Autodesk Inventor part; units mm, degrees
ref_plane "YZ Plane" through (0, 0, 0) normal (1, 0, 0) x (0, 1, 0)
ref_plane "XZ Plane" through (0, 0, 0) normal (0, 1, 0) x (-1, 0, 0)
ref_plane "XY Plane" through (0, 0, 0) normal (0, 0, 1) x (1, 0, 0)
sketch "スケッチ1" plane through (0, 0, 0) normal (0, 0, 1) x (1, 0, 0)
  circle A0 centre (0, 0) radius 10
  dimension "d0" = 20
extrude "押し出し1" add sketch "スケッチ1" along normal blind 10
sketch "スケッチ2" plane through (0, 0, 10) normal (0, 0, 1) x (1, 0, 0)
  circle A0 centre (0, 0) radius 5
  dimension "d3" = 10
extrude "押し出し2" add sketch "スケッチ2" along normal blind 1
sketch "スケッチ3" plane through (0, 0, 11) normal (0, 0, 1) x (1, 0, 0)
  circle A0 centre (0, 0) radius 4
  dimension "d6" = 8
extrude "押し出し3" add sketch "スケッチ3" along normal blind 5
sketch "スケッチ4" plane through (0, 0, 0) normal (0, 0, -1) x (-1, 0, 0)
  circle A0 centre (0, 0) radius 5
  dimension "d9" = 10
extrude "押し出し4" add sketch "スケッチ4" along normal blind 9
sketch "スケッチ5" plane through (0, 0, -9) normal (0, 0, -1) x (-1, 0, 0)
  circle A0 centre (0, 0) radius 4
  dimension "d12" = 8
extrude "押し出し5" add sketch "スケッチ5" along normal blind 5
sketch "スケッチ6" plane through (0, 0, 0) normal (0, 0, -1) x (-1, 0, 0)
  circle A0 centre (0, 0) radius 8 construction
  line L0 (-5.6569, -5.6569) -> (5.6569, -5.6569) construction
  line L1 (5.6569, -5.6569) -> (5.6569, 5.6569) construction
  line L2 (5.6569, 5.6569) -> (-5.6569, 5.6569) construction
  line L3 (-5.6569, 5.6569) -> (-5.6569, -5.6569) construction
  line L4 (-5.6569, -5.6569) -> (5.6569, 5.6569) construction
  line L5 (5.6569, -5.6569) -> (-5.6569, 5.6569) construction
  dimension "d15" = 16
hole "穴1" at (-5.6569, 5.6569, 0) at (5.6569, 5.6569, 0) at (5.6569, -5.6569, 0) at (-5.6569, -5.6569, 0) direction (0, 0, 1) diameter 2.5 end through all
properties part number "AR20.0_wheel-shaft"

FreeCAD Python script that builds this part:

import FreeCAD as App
import Part
import Sketcher

V = App.Vector

doc = App.newDocument("Part")
body = doc.addObject("PartDesign::Body", "Body")

# Sketch on XY plane
sketch1 = body.newObject("Sketcher::SketchObject", "Sketch")
sketch1.AttachmentSupport = (doc.getObject("XY_Plane"), [""])
sketch1.MapMode = "FlatFace"
sketch1.addGeometry(Part.Circle(V(0, 0, 0), V(0, 0, 1), 10), False)
sketch1.addConstraint([
    Sketcher.Constraint("Coincident", 0, 3, -1, 1),
    Sketcher.Constraint("Diameter", 0, 20.0),
])
pad1 = body.newObject("PartDesign::Pad", "Pad")
pad1.Profile = sketch1
pad1.Length = 10

# Sketch on XY plane
sketch2 = body.newObject("Sketcher::SketchObject", "Sketch001")
sketch2.AttachmentSupport = (doc.getObject("XY_Plane"), [""])
sketch2.MapMode = "FlatFace"
sketch2.AttachmentOffset = App.Placement(V(0, 0, 10), App.Rotation())
sketch2.addGeometry(Part.Circle(V(0, 0, 0), V(0, 0, 1), 5), False)
sketch2.addConstraint([
    Sketcher.Constraint("Coincident", 0, 3, -1, 1),
    Sketcher.Constraint("Diameter", 0, 10.0),
])
pad2 = body.newObject("PartDesign::Pad", "Pad001")
pad2.Profile = sketch2
pad2.Length = 1

# Sketch on XY plane
sketch3 = body.newObject("Sketcher::SketchObject", "Sketch002")
sketch3.AttachmentSupport = (doc.getObject("XY_Plane"), [""])
sketch3.MapMode = "FlatFace"
sketch3.AttachmentOffset = App.Placement(V(0, 0, 11), App.Rotation())
sketch3.addGeometry(Part.Circle(V(0, 0, 0), V(0, 0, 1), 4), False)
sketch3.addConstraint([
    Sketcher.Constraint("Coincident", 0, 3, -1, 1),
    Sketcher.Constraint("Diameter", 0, 8.0),
])
pad3 = body.newObject("PartDesign::Pad", "Pad002")
pad3.Profile = sketch3
pad3.Length = 5

# Sketch on XY plane
sketch4 = body.newObject("Sketcher::SketchObject", "Sketch003")
sketch4.AttachmentSupport = (doc.getObject("XY_Plane"), [""])
sketch4.MapMode = "FlatFace"
sketch4.addGeometry(Part.Circle(V(0, 0, 0), V(0, 0, 1), 5), False)
sketch4.addConstraint([
    Sketcher.Constraint("Coincident", 0, 3, -1, 1),
    Sketcher.Constraint("Diameter", 0, 10.0),
])
pad4 = body.newObject("PartDesign::Pad", "Pad003")
pad4.Profile = sketch4
pad4.Length = 9
pad4.Reversed = True

# Sketch on XY plane
sketch5 = body.newObject("Sketcher::SketchObject", "Sketch004")
sketch5.AttachmentSupport = (doc.getObject("XY_Plane"), [""])
sketch5.MapMode = "FlatFace"
sketch5.AttachmentOffset = App.Placement(V(0, 0, -9), App.Rotation())
sketch5.addGeometry(Part.Circle(V(0, 0, 0), V(0, 0, 1), 4), False)
sketch5.addConstraint([
    Sketcher.Constraint("Coincident", 0, 3, -1, 1),
    Sketcher.Constraint("Diameter", 0, 8.0),
])
pad5 = body.newObject("PartDesign::Pad", "Pad004")
pad5.Profile = sketch5
pad5.Length = 5
pad5.Reversed = True

# Sketch on XY plane
sketch6 = body.newObject("Sketcher::SketchObject", "Sketch005")
sketch6.AttachmentSupport = (doc.getObject("XY_Plane"), [""])
sketch6.MapMode = "FlatFace"
sketch6.addGeometry([
    Part.Circle(V(-5.6569, 5.6569, 0), V(0, 0, 1), 1.25),
    Part.Circle(V(5.6569, 5.6569, 0), V(0, 0, 1), 1.25),
    Part.Circle(V(5.6569, -5.6569, 0), V(0, 0, 1), 1.25),
    Part.Circle(V(-5.6569, -5.6569, 0), V(0, 0, 1), 1.25),
], False)
sketch6.addConstraint([
    Sketcher.Constraint("Equal", 0, 1),
    Sketcher.Constraint("Equal", 1, 2),
    Sketcher.Constraint("Equal", 2, 3),
    Sketcher.Constraint("Symmetric", 0, 3, 2, 3, -1, 1),
    Sketcher.Constraint("Symmetric", 1, 3, 3, 3, -1, 1),
    Sketcher.Constraint("Symmetric", 0, 3, 1, 3, -2),
    Sketcher.Constraint("Diameter", 0, 2.5),
    Sketcher.Constraint("DistanceX", 0, 3, -1, 1, 5.657),
    Sketcher.Constraint("DistanceY", -1, 1, 0, 3, 5.657),
])
doc.recompute()
hole = body.newObject("PartDesign::Hole", "Hole")
hole.Profile = sketch6
hole.ThreadType = "None"
hole.Diameter = 2.5
hole.DepthType = "ThroughAll"
hole.Reversed = True

doc.recompute()
